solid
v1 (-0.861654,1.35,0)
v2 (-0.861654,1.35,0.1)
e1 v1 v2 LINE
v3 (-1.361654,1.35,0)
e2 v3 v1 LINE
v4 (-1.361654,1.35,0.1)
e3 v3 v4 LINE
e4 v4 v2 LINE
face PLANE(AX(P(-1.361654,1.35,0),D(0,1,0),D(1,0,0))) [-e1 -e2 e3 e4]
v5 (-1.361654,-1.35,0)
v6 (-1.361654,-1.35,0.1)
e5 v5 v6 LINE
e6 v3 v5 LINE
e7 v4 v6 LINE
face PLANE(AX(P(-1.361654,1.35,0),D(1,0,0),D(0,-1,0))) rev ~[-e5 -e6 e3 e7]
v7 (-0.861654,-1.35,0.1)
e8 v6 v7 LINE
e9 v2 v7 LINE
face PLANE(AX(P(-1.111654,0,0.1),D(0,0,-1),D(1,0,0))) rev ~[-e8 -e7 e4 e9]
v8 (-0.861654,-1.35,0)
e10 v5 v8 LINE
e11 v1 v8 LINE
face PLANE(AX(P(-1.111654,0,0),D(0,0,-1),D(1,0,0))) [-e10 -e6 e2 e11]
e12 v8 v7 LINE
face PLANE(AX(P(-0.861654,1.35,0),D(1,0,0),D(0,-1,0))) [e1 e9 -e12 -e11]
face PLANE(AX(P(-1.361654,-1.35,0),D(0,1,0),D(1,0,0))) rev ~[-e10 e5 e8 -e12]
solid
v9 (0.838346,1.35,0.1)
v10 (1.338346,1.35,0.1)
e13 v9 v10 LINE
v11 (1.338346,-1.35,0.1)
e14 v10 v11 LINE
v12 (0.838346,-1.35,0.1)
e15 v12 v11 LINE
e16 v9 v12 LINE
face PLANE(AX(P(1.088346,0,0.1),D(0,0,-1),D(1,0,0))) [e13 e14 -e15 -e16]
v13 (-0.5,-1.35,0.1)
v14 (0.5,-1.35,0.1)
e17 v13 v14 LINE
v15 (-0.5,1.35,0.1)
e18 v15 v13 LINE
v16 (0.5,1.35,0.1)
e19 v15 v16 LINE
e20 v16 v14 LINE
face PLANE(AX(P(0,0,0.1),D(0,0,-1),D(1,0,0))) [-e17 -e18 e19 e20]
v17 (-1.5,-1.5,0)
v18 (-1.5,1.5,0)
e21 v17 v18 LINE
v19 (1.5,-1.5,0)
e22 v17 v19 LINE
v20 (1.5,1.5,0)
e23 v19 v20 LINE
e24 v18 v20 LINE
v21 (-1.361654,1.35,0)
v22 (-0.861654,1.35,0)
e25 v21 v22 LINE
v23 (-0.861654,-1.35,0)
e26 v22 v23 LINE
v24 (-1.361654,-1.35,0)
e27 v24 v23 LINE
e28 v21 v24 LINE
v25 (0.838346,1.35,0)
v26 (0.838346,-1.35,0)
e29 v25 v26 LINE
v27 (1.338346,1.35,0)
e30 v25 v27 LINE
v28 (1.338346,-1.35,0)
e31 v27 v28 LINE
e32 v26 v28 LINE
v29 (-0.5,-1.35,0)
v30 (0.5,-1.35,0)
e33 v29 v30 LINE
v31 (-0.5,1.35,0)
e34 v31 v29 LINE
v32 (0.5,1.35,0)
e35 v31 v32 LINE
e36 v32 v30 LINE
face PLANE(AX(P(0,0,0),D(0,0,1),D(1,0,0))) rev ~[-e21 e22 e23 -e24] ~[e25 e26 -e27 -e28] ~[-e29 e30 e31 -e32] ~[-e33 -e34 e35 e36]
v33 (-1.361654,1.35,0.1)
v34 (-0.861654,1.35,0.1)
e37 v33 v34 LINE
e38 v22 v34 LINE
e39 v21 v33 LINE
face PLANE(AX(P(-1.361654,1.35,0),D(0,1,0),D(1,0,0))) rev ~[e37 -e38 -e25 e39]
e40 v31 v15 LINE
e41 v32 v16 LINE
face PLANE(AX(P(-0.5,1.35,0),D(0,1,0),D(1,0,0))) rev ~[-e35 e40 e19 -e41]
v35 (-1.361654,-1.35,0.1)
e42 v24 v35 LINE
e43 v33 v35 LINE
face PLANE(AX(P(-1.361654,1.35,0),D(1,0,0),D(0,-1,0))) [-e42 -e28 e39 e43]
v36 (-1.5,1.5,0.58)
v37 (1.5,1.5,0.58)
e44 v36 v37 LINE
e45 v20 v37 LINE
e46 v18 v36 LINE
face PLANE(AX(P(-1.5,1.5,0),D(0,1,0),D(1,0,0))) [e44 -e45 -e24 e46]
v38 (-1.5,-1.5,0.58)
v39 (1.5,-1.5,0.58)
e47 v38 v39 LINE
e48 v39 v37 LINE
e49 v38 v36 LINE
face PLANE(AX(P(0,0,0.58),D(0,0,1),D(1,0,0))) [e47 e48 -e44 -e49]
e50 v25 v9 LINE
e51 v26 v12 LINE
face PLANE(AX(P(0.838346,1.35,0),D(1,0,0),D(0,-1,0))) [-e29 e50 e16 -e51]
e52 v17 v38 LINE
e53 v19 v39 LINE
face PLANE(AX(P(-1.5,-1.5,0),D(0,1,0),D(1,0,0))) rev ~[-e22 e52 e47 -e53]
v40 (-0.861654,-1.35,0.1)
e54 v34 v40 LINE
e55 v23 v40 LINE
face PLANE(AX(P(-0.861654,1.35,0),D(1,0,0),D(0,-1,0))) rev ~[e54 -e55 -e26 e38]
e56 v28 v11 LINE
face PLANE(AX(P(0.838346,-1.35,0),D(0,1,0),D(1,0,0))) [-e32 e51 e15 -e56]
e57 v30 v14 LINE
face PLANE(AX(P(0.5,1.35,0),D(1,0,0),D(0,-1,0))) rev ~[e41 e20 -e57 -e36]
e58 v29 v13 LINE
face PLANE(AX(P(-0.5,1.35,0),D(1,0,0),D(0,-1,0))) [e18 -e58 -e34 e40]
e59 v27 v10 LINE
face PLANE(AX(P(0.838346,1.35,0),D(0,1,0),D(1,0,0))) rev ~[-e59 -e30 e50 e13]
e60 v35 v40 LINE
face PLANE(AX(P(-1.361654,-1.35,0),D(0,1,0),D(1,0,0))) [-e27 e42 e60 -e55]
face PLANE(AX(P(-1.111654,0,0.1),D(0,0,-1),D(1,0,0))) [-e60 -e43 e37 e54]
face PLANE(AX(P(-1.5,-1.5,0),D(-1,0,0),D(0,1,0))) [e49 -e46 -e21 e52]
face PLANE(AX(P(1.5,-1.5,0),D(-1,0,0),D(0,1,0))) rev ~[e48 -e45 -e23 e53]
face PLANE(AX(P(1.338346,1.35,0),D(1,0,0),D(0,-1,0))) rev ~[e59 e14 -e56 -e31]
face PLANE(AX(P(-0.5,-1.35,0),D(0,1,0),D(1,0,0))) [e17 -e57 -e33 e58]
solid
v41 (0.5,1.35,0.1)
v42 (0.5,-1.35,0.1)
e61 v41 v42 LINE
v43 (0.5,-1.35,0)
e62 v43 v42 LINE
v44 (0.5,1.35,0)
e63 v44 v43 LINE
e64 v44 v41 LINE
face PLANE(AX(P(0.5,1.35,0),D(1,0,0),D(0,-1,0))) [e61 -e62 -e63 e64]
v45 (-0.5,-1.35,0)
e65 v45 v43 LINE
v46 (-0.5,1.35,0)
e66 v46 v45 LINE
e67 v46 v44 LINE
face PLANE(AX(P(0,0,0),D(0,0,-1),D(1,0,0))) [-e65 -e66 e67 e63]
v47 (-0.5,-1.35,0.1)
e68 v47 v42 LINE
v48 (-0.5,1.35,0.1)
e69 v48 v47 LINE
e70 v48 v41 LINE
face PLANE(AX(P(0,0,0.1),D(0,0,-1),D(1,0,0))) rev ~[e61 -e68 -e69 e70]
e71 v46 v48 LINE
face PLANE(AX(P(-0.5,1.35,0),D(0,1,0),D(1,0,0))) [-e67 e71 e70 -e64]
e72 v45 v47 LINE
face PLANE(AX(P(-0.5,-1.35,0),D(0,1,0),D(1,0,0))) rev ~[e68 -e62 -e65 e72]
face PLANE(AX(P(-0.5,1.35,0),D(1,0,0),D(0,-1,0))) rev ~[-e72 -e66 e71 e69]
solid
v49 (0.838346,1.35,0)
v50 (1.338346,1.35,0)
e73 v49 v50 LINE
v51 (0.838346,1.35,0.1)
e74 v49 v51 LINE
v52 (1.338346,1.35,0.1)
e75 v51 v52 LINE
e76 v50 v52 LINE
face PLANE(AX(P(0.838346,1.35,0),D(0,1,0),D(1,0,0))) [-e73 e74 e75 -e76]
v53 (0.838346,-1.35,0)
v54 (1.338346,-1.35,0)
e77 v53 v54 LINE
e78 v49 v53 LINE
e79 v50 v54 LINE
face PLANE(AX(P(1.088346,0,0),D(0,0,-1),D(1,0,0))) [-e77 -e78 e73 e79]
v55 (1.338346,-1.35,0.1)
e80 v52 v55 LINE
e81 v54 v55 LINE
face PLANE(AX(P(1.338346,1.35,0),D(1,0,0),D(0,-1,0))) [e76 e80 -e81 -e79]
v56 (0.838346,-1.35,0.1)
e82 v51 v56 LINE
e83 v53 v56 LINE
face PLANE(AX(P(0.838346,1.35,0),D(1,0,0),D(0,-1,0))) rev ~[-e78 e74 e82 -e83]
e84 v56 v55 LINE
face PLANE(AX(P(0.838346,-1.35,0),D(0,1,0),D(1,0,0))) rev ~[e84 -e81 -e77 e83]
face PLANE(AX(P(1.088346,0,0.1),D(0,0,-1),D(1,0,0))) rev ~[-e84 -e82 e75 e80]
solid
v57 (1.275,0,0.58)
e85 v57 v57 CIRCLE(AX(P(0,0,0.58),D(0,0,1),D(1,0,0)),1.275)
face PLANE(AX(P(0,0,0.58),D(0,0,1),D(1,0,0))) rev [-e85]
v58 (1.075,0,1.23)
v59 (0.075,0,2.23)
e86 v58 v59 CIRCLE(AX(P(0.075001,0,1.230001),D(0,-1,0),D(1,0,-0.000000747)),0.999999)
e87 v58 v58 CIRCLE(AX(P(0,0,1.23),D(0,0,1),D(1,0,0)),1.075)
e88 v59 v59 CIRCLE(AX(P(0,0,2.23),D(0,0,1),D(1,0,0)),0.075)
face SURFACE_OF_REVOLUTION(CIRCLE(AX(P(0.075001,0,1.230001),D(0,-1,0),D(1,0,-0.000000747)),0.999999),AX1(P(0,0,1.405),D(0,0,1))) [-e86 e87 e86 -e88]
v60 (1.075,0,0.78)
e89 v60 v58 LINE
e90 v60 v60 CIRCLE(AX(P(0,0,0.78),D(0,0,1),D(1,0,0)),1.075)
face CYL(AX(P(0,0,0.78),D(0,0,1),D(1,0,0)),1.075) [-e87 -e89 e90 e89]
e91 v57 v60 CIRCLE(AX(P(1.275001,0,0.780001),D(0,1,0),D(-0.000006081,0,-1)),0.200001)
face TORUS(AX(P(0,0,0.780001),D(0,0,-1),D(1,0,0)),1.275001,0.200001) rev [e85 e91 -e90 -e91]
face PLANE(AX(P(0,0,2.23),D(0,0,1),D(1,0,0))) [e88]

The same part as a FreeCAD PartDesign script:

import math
import FreeCAD as App
import Part
import Sketcher

V = App.Vector

doc = App.newDocument("Part")
params = doc.addObject("Spreadsheet::Sheet", "Params")
for row, (alias, value) in enumerate([
    ("sketch1_width", "3 mm"),
    ("pad1_length", "0.58 mm"),
    ("sketch2_width", "1 mm"),
    ("sketch2_width2", "0.5 mm"),
    ("sketch2_height", "2.7 mm"),
    ("pocket1_length", "0.1 mm"),
    ("sketch3_radius", "0.999999 mm"),
    ("sketch3_radius2", "0.200001 mm"),
    ("sketch3_height", "0.45 mm"),
    ("sketch3_height2", "1.65 mm"),
    ("revolution_angle", "360 deg"),
    ("sketch4_width", "1 mm"),
    ("sketch4_width2", "0.5 mm"),
    ("sketch4_height", "2.7 mm"),
    ("pad2_length", "0.1 mm"),
], start=1):
    params.set(f"A{row}", alias)
    params.set(f"B{row}", "=" + value)
    params.setAlias(f"B{row}", alias)

body = doc.addObject("PartDesign::Body", "Body")

# Sketch on XY plane
sketch1 = doc.addObject("Sketcher::SketchObject", "Sketch")
body.addObject(sketch1)
sketch1.AttachmentSupport = (doc.XY_Plane, [""])
sketch1.MapMode = "FlatFace"
sketch1.addGeometry([
    Part.LineSegment(V(-1.5, 1.5, 0), V(-1.5, -1.5, 0)),
    Part.LineSegment(V(-1.5, -1.5, 0), V(1.5, -1.5, 0)),
    Part.LineSegment(V(1.5, -1.5, 0), V(1.5, 1.5, 0)),
    Part.LineSegment(V(1.5, 1.5, 0), V(-1.5, 1.5, 0)),
], False)
sketch1.addConstraint([
    Sketcher.Constraint("Coincident", 0, 2, 1, 1),
    Sketcher.Constraint("Coincident", 1, 2, 2, 1),
    Sketcher.Constraint("Coincident", 2, 2, 3, 1),
    Sketcher.Constraint("Coincident", 3, 2, 0, 1),
    Sketcher.Constraint("Vertical", 0),
    Sketcher.Constraint("Horizontal", 1),
    Sketcher.Constraint("Vertical", 2),
    Sketcher.Constraint("Horizontal", 3),
    Sketcher.Constraint("Symmetric", 0, 2, 2, 2, -1, 1),
    Sketcher.Constraint("Equal", 3, 0),
    Sketcher.Constraint("DistanceX", 1, 1, 1, 2, 3.0),
])
sketch1.setExpression("Constraints[10]", "Params.sketch1_width")
pad1 = doc.addObject("PartDesign::Pad", "Pad")
body.addObject(pad1)
pad1.Profile = sketch1
pad1.setExpression("Length", "Params.pad1_length")

# Sketch on XY plane
sketch2 = doc.addObject("Sketcher::SketchObject", "Sketch001")
body.addObject(sketch2)
sketch2.AttachmentSupport = (doc.XY_Plane, [""])
sketch2.MapMode = "FlatFace"
sketch2.addGeometry([
    Part.LineSegment(V(-0.5, -1.35, 0), V(-0.5, 1.35, 0)),  # 0
    Part.LineSegment(V(-0.5, 1.35, 0), V(0.5, 1.35, 0)),  # 1
    Part.LineSegment(V(0.5, 1.35, 0), V(0.5, -1.35, 0)),  # 2
    Part.LineSegment(V(0.5, -1.35, 0), V(-0.5, -1.35, 0)),  # 3
    Part.LineSegment(V(0.84, -1.35, 0), V(0.84, 1.35, 0)),  # 4
    Part.LineSegment(V(0.84, 1.35, 0), V(1.34, 1.35, 0)),  # 5
    Part.LineSegment(V(1.34, 1.35, 0), V(1.34, -1.35, 0)),  # 6
    Part.LineSegment(V(1.34, -1.35, 0), V(0.84, -1.35, 0)),  # 7
    Part.LineSegment(V(-1.36, -1.35, 0), V(-1.36, 1.35, 0)),  # 8
    Part.LineSegment(V(-1.36, 1.35, 0), V(-0.86, 1.35, 0)),  # 9
    Part.LineSegment(V(-0.86, 1.35, 0), V(-0.86, -1.35, 0)),  # 10
    Part.LineSegment(V(-0.86, -1.35, 0), V(-1.36, -1.35, 0)),  # 11
], False)
sketch2.addConstraint([
    Sketcher.Constraint("Coincident", 0, 2, 1, 1),
    Sketcher.Constraint("Coincident", 1, 2, 2, 1),
    Sketcher.Constraint("Coincident", 2, 2, 3, 1),
    Sketcher.Constraint("Coincident", 3, 2, 0, 1),
    Sketcher.Constraint("Coincident", 4, 2, 5, 1),
    Sketcher.Constraint("Coincident", 5, 2, 6, 1),
    Sketcher.Constraint("Coincident", 6, 2, 7, 1),
    Sketcher.Constraint("Coincident", 7, 2, 4, 1),
    Sketcher.Constraint("Coincident", 8, 2, 9, 1),
    Sketcher.Constraint("Coincident", 9, 2, 10, 1),
    Sketcher.Constraint("Coincident", 10, 2, 11, 1),
    Sketcher.Constraint("Coincident", 11, 2, 8, 1),
    Sketcher.Constraint("Vertical", 0),
    Sketcher.Constraint("Horizontal", 1),
    Sketcher.Constraint("Vertical", 2),
    Sketcher.Constraint("Horizontal", 3),
    Sketcher.Constraint("Vertical", 4),
    Sketcher.Constraint("Horizontal", 5),
    Sketcher.Constraint("Vertical", 6),
    Sketcher.Constraint("Horizontal", 7),
    Sketcher.Constraint("Vertical", 8),
    Sketcher.Constraint("Horizontal", 9),
    Sketcher.Constraint("Vertical", 10),
    Sketcher.Constraint("Horizontal", 11),
    Sketcher.Constraint("Symmetric", 0, 2, 2, 2, -1, 1),
    Sketcher.Constraint("Horizontal", 1, 2, 4, 2),
    Sketcher.Constraint("Horizontal", 3, 2, 6, 2),
    Sketcher.Constraint("Horizontal", 5, 2, 8, 2),
    Sketcher.Constraint("Horizontal", 7, 2, 10, 2),
    Sketcher.Constraint("Equal", 7, 9),
    Sketcher.Constraint("DistanceX", 1, 1, 1, 2, 1.0),
    Sketcher.Constraint("DistanceX", 5, 1, 5, 2, 0.5),
    Sketcher.Constraint("DistanceY", 0, 1, 0, 2, 2.7),
    Sketcher.Constraint("DistanceX", 8, 2, 4, 2, 2.2),
    Sketcher.Constraint("DistanceX", -1, 1, 4, 2, 0.838346),
])
sketch2.setExpression("Constraints[30]", "Params.sketch2_width")
sketch2.setExpression("Constraints[31]", "Params.sketch2_width2")
sketch2.setExpression("Constraints[32]", "Params.sketch2_height")
pocket1 = doc.addObject("PartDesign::Pocket", "Pocket")
body.addObject(pocket1)
pocket1.Profile = sketch2
pocket1.setExpression("Length", "Params.pocket1_length")
pocket1.Reversed = True
body2 = doc.addObject("PartDesign::Body", "Body001")

# Sketch on XZ plane
sketch3 = doc.addObject("Sketcher::SketchObject", "Sketch002")
body2.addObject(sketch3)
sketch3.AttachmentSupport = (doc.getObject("XZ_Plane001"), [""])
sketch3.MapMode = "FlatFace"
sketch3.addGeometry([
    Part.ArcOfCircle(Part.Circle(V(1.28, 0.78, 0), V(0, 0, 1), 0.2), math.radians(-180), math.radians(-90)),  # 0
    Part.LineSegment(V(1.07, 0.78, 0), V(1.07, 1.23, 0)),  # 1
    Part.ArcOfCircle(Part.Circle(V(0.08, 1.23, 0), V(0, 0, 1), 1), math.radians(0), math.radians(90)),  # 2
    Part.LineSegment(V(0.07, 2.23, 0), V(0, 2.23, 0)),  # 3
    Part.LineSegment(V(0, 2.23, 0), V(0, 0.58, 0)),  # 4
    Part.LineSegment(V(0, 0.58, 0), V(1.27, 0.58, 0)),  # 5
], False)
sketch3.addConstraint([
    Sketcher.Constraint("Coincident", 0, 1, 1, 1),
    Sketcher.Constraint("Tangent", 1, 2, 2, 1),
    Sketcher.Constraint("Tangent", 2, 2, 3, 1),
    Sketcher.Constraint("Coincident", 3, 2, 4, 1),
    Sketcher.Constraint("Coincident", 4, 2, 5, 1),
    Sketcher.Constraint("Coincident", 5, 2, 0, 2),
    Sketcher.Constraint("Vertical", 1),
    Sketcher.Constraint("Horizontal", 3),
    Sketcher.Constraint("Vertical", 4),
    Sketcher.Constraint("Horizontal", 5),
    Sketcher.Constraint("PointOnObject", 3, 2, -2),
    Sketcher.Constraint("Vertical", 0, 3, 5, 2),
    Sketcher.Constraint("Radius", 2, 0.999999),
    Sketcher.Constraint("Radius", 0, 0.200001),
    Sketcher.Constraint("DistanceY", 1, 1, 1, 2, 0.45),
    Sketcher.Constraint("DistanceY", 4, 2, 4, 1, 1.65),
    Sketcher.Constraint("DistanceX", 3, 2, 3, 1, 0.075),
    Sketcher.Constraint("DistanceY", -1, 1, 0, 3, 0.780001),
])
sketch3.setExpression("Constraints[12]", "Params.sketch3_radius")
sketch3.setExpression("Constraints[13]", "Params.sketch3_radius2")
sketch3.setExpression("Constraints[14]", "Params.sketch3_height")
sketch3.setExpression("Constraints[15]", "Params.sketch3_height2")
revolution = doc.addObject("PartDesign::Revolution", "Revolution")
body2.addObject(revolution)
revolution.Profile = sketch3
revolution.ReferenceAxis = (sketch3, ["V_Axis"])
revolution.setExpression("Angle", "Params.revolution_angle")
body3 = doc.addObject("PartDesign::Body", "Body002")
body3.AllowCompound = True

# Sketch on XY plane
sketch4 = doc.addObject("Sketcher::SketchObject", "Sketch003")
body3.addObject(sketch4)
sketch4.AttachmentSupport = (doc.getObject("XY_Plane002"), [""])
sketch4.MapMode = "FlatFace"
sketch4.addGeometry([
    Part.LineSegment(V(-0.5, -1.35, 0), V(-0.5, 1.35, 0)),  # 0
    Part.LineSegment(V(-0.5, 1.35, 0), V(0.5, 1.35, 0)),  # 1
    Part.LineSegment(V(0.5, 1.35, 0), V(0.5, -1.35, 0)),  # 2
    Part.LineSegment(V(0.5, -1.35, 0), V(-0.5, -1.35, 0)),  # 3
    Part.LineSegment(V(0.84, -1.35, 0), V(0.84, 1.35, 0)),  # 4
    Part.LineSegment(V(0.84, 1.35, 0), V(1.34, 1.35, 0)),  # 5
    Part.LineSegment(V(1.34, 1.35, 0), V(1.34, -1.35, 0)),  # 6
    Part.LineSegment(V(1.34, -1.35, 0), V(0.84, -1.35, 0)),  # 7
    Part.LineSegment(V(-1.36, -1.35, 0), V(-1.36, 1.35, 0)),  # 8
    Part.LineSegment(V(-1.36, 1.35, 0), V(-0.86, 1.35, 0)),  # 9
    Part.LineSegment(V(-0.86, 1.35, 0), V(-0.86, -1.35, 0)),  # 10
    Part.LineSegment(V(-0.86, -1.35, 0), V(-1.36, -1.35, 0)),  # 11
], False)
sketch4.addConstraint([
    Sketcher.Constraint("Coincident", 0, 2, 1, 1),
    Sketcher.Constraint("Coincident", 1, 2, 2, 1),
    Sketcher.Constraint("Coincident", 2, 2, 3, 1),
    Sketcher.Constraint("Coincident", 3, 2, 0, 1),
    Sketcher.Constraint("Coincident", 4, 2, 5, 1),
    Sketcher.Constraint("Coincident", 5, 2, 6, 1),
    Sketcher.Constraint("Coincident", 6, 2, 7, 1),
    Sketcher.Constraint("Coincident", 7, 2, 4, 1),
    Sketcher.Constraint("Coincident", 8, 2, 9, 1),
    Sketcher.Constraint("Coincident", 9, 2, 10, 1),
    Sketcher.Constraint("Coincident", 10, 2, 11, 1),
    Sketcher.Constraint("Coincident", 11, 2, 8, 1),
    Sketcher.Constraint("Vertical", 0),
    Sketcher.Constraint("Horizontal", 1),
    Sketcher.Constraint("Vertical", 2),
    Sketcher.Constraint("Horizontal", 3),
    Sketcher.Constraint("Vertical", 4),
    Sketcher.Constraint("Horizontal", 5),
    Sketcher.Constraint("Vertical", 6),
    Sketcher.Constraint("Horizontal", 7),
    Sketcher.Constraint("Vertical", 8),
    Sketcher.Constraint("Horizontal", 9),
    Sketcher.Constraint("Vertical", 10),
    Sketcher.Constraint("Horizontal", 11),
    Sketcher.Constraint("Symmetric", 0, 2, 2, 2, -1, 1),
    Sketcher.Constraint("Horizontal", 1, 2, 4, 2),
    Sketcher.Constraint("Horizontal", 3, 2, 6, 2),
    Sketcher.Constraint("Horizontal", 5, 2, 8, 2),
    Sketcher.Constraint("Horizontal", 7, 2, 10, 2),
    Sketcher.Constraint("Equal", 7, 9),
    Sketcher.Constraint("DistanceX", 1, 1, 1, 2, 1.0),
    Sketcher.Constraint("DistanceX", 5, 1, 5, 2, 0.5),
    Sketcher.Constraint("DistanceY", 0, 1, 0, 2, 2.7),
    Sketcher.Constraint("DistanceX", 8, 2, 4, 2, 2.2),
    Sketcher.Constraint("DistanceX", -1, 1, 4, 2, 0.838346),
])
sketch4.setExpression("Constraints[30]", "Params.sketch4_width")
sketch4.setExpression("Constraints[31]", "Params.sketch4_width2")
sketch4.setExpression("Constraints[32]", "Params.sketch4_height")
pad2 = doc.addObject("PartDesign::Pad", "Pad001")
body3.addObject(pad2)
pad2.Profile = sketch4
pad2.setExpression("Length", "Params.pad2_length")

doc.recompute()
